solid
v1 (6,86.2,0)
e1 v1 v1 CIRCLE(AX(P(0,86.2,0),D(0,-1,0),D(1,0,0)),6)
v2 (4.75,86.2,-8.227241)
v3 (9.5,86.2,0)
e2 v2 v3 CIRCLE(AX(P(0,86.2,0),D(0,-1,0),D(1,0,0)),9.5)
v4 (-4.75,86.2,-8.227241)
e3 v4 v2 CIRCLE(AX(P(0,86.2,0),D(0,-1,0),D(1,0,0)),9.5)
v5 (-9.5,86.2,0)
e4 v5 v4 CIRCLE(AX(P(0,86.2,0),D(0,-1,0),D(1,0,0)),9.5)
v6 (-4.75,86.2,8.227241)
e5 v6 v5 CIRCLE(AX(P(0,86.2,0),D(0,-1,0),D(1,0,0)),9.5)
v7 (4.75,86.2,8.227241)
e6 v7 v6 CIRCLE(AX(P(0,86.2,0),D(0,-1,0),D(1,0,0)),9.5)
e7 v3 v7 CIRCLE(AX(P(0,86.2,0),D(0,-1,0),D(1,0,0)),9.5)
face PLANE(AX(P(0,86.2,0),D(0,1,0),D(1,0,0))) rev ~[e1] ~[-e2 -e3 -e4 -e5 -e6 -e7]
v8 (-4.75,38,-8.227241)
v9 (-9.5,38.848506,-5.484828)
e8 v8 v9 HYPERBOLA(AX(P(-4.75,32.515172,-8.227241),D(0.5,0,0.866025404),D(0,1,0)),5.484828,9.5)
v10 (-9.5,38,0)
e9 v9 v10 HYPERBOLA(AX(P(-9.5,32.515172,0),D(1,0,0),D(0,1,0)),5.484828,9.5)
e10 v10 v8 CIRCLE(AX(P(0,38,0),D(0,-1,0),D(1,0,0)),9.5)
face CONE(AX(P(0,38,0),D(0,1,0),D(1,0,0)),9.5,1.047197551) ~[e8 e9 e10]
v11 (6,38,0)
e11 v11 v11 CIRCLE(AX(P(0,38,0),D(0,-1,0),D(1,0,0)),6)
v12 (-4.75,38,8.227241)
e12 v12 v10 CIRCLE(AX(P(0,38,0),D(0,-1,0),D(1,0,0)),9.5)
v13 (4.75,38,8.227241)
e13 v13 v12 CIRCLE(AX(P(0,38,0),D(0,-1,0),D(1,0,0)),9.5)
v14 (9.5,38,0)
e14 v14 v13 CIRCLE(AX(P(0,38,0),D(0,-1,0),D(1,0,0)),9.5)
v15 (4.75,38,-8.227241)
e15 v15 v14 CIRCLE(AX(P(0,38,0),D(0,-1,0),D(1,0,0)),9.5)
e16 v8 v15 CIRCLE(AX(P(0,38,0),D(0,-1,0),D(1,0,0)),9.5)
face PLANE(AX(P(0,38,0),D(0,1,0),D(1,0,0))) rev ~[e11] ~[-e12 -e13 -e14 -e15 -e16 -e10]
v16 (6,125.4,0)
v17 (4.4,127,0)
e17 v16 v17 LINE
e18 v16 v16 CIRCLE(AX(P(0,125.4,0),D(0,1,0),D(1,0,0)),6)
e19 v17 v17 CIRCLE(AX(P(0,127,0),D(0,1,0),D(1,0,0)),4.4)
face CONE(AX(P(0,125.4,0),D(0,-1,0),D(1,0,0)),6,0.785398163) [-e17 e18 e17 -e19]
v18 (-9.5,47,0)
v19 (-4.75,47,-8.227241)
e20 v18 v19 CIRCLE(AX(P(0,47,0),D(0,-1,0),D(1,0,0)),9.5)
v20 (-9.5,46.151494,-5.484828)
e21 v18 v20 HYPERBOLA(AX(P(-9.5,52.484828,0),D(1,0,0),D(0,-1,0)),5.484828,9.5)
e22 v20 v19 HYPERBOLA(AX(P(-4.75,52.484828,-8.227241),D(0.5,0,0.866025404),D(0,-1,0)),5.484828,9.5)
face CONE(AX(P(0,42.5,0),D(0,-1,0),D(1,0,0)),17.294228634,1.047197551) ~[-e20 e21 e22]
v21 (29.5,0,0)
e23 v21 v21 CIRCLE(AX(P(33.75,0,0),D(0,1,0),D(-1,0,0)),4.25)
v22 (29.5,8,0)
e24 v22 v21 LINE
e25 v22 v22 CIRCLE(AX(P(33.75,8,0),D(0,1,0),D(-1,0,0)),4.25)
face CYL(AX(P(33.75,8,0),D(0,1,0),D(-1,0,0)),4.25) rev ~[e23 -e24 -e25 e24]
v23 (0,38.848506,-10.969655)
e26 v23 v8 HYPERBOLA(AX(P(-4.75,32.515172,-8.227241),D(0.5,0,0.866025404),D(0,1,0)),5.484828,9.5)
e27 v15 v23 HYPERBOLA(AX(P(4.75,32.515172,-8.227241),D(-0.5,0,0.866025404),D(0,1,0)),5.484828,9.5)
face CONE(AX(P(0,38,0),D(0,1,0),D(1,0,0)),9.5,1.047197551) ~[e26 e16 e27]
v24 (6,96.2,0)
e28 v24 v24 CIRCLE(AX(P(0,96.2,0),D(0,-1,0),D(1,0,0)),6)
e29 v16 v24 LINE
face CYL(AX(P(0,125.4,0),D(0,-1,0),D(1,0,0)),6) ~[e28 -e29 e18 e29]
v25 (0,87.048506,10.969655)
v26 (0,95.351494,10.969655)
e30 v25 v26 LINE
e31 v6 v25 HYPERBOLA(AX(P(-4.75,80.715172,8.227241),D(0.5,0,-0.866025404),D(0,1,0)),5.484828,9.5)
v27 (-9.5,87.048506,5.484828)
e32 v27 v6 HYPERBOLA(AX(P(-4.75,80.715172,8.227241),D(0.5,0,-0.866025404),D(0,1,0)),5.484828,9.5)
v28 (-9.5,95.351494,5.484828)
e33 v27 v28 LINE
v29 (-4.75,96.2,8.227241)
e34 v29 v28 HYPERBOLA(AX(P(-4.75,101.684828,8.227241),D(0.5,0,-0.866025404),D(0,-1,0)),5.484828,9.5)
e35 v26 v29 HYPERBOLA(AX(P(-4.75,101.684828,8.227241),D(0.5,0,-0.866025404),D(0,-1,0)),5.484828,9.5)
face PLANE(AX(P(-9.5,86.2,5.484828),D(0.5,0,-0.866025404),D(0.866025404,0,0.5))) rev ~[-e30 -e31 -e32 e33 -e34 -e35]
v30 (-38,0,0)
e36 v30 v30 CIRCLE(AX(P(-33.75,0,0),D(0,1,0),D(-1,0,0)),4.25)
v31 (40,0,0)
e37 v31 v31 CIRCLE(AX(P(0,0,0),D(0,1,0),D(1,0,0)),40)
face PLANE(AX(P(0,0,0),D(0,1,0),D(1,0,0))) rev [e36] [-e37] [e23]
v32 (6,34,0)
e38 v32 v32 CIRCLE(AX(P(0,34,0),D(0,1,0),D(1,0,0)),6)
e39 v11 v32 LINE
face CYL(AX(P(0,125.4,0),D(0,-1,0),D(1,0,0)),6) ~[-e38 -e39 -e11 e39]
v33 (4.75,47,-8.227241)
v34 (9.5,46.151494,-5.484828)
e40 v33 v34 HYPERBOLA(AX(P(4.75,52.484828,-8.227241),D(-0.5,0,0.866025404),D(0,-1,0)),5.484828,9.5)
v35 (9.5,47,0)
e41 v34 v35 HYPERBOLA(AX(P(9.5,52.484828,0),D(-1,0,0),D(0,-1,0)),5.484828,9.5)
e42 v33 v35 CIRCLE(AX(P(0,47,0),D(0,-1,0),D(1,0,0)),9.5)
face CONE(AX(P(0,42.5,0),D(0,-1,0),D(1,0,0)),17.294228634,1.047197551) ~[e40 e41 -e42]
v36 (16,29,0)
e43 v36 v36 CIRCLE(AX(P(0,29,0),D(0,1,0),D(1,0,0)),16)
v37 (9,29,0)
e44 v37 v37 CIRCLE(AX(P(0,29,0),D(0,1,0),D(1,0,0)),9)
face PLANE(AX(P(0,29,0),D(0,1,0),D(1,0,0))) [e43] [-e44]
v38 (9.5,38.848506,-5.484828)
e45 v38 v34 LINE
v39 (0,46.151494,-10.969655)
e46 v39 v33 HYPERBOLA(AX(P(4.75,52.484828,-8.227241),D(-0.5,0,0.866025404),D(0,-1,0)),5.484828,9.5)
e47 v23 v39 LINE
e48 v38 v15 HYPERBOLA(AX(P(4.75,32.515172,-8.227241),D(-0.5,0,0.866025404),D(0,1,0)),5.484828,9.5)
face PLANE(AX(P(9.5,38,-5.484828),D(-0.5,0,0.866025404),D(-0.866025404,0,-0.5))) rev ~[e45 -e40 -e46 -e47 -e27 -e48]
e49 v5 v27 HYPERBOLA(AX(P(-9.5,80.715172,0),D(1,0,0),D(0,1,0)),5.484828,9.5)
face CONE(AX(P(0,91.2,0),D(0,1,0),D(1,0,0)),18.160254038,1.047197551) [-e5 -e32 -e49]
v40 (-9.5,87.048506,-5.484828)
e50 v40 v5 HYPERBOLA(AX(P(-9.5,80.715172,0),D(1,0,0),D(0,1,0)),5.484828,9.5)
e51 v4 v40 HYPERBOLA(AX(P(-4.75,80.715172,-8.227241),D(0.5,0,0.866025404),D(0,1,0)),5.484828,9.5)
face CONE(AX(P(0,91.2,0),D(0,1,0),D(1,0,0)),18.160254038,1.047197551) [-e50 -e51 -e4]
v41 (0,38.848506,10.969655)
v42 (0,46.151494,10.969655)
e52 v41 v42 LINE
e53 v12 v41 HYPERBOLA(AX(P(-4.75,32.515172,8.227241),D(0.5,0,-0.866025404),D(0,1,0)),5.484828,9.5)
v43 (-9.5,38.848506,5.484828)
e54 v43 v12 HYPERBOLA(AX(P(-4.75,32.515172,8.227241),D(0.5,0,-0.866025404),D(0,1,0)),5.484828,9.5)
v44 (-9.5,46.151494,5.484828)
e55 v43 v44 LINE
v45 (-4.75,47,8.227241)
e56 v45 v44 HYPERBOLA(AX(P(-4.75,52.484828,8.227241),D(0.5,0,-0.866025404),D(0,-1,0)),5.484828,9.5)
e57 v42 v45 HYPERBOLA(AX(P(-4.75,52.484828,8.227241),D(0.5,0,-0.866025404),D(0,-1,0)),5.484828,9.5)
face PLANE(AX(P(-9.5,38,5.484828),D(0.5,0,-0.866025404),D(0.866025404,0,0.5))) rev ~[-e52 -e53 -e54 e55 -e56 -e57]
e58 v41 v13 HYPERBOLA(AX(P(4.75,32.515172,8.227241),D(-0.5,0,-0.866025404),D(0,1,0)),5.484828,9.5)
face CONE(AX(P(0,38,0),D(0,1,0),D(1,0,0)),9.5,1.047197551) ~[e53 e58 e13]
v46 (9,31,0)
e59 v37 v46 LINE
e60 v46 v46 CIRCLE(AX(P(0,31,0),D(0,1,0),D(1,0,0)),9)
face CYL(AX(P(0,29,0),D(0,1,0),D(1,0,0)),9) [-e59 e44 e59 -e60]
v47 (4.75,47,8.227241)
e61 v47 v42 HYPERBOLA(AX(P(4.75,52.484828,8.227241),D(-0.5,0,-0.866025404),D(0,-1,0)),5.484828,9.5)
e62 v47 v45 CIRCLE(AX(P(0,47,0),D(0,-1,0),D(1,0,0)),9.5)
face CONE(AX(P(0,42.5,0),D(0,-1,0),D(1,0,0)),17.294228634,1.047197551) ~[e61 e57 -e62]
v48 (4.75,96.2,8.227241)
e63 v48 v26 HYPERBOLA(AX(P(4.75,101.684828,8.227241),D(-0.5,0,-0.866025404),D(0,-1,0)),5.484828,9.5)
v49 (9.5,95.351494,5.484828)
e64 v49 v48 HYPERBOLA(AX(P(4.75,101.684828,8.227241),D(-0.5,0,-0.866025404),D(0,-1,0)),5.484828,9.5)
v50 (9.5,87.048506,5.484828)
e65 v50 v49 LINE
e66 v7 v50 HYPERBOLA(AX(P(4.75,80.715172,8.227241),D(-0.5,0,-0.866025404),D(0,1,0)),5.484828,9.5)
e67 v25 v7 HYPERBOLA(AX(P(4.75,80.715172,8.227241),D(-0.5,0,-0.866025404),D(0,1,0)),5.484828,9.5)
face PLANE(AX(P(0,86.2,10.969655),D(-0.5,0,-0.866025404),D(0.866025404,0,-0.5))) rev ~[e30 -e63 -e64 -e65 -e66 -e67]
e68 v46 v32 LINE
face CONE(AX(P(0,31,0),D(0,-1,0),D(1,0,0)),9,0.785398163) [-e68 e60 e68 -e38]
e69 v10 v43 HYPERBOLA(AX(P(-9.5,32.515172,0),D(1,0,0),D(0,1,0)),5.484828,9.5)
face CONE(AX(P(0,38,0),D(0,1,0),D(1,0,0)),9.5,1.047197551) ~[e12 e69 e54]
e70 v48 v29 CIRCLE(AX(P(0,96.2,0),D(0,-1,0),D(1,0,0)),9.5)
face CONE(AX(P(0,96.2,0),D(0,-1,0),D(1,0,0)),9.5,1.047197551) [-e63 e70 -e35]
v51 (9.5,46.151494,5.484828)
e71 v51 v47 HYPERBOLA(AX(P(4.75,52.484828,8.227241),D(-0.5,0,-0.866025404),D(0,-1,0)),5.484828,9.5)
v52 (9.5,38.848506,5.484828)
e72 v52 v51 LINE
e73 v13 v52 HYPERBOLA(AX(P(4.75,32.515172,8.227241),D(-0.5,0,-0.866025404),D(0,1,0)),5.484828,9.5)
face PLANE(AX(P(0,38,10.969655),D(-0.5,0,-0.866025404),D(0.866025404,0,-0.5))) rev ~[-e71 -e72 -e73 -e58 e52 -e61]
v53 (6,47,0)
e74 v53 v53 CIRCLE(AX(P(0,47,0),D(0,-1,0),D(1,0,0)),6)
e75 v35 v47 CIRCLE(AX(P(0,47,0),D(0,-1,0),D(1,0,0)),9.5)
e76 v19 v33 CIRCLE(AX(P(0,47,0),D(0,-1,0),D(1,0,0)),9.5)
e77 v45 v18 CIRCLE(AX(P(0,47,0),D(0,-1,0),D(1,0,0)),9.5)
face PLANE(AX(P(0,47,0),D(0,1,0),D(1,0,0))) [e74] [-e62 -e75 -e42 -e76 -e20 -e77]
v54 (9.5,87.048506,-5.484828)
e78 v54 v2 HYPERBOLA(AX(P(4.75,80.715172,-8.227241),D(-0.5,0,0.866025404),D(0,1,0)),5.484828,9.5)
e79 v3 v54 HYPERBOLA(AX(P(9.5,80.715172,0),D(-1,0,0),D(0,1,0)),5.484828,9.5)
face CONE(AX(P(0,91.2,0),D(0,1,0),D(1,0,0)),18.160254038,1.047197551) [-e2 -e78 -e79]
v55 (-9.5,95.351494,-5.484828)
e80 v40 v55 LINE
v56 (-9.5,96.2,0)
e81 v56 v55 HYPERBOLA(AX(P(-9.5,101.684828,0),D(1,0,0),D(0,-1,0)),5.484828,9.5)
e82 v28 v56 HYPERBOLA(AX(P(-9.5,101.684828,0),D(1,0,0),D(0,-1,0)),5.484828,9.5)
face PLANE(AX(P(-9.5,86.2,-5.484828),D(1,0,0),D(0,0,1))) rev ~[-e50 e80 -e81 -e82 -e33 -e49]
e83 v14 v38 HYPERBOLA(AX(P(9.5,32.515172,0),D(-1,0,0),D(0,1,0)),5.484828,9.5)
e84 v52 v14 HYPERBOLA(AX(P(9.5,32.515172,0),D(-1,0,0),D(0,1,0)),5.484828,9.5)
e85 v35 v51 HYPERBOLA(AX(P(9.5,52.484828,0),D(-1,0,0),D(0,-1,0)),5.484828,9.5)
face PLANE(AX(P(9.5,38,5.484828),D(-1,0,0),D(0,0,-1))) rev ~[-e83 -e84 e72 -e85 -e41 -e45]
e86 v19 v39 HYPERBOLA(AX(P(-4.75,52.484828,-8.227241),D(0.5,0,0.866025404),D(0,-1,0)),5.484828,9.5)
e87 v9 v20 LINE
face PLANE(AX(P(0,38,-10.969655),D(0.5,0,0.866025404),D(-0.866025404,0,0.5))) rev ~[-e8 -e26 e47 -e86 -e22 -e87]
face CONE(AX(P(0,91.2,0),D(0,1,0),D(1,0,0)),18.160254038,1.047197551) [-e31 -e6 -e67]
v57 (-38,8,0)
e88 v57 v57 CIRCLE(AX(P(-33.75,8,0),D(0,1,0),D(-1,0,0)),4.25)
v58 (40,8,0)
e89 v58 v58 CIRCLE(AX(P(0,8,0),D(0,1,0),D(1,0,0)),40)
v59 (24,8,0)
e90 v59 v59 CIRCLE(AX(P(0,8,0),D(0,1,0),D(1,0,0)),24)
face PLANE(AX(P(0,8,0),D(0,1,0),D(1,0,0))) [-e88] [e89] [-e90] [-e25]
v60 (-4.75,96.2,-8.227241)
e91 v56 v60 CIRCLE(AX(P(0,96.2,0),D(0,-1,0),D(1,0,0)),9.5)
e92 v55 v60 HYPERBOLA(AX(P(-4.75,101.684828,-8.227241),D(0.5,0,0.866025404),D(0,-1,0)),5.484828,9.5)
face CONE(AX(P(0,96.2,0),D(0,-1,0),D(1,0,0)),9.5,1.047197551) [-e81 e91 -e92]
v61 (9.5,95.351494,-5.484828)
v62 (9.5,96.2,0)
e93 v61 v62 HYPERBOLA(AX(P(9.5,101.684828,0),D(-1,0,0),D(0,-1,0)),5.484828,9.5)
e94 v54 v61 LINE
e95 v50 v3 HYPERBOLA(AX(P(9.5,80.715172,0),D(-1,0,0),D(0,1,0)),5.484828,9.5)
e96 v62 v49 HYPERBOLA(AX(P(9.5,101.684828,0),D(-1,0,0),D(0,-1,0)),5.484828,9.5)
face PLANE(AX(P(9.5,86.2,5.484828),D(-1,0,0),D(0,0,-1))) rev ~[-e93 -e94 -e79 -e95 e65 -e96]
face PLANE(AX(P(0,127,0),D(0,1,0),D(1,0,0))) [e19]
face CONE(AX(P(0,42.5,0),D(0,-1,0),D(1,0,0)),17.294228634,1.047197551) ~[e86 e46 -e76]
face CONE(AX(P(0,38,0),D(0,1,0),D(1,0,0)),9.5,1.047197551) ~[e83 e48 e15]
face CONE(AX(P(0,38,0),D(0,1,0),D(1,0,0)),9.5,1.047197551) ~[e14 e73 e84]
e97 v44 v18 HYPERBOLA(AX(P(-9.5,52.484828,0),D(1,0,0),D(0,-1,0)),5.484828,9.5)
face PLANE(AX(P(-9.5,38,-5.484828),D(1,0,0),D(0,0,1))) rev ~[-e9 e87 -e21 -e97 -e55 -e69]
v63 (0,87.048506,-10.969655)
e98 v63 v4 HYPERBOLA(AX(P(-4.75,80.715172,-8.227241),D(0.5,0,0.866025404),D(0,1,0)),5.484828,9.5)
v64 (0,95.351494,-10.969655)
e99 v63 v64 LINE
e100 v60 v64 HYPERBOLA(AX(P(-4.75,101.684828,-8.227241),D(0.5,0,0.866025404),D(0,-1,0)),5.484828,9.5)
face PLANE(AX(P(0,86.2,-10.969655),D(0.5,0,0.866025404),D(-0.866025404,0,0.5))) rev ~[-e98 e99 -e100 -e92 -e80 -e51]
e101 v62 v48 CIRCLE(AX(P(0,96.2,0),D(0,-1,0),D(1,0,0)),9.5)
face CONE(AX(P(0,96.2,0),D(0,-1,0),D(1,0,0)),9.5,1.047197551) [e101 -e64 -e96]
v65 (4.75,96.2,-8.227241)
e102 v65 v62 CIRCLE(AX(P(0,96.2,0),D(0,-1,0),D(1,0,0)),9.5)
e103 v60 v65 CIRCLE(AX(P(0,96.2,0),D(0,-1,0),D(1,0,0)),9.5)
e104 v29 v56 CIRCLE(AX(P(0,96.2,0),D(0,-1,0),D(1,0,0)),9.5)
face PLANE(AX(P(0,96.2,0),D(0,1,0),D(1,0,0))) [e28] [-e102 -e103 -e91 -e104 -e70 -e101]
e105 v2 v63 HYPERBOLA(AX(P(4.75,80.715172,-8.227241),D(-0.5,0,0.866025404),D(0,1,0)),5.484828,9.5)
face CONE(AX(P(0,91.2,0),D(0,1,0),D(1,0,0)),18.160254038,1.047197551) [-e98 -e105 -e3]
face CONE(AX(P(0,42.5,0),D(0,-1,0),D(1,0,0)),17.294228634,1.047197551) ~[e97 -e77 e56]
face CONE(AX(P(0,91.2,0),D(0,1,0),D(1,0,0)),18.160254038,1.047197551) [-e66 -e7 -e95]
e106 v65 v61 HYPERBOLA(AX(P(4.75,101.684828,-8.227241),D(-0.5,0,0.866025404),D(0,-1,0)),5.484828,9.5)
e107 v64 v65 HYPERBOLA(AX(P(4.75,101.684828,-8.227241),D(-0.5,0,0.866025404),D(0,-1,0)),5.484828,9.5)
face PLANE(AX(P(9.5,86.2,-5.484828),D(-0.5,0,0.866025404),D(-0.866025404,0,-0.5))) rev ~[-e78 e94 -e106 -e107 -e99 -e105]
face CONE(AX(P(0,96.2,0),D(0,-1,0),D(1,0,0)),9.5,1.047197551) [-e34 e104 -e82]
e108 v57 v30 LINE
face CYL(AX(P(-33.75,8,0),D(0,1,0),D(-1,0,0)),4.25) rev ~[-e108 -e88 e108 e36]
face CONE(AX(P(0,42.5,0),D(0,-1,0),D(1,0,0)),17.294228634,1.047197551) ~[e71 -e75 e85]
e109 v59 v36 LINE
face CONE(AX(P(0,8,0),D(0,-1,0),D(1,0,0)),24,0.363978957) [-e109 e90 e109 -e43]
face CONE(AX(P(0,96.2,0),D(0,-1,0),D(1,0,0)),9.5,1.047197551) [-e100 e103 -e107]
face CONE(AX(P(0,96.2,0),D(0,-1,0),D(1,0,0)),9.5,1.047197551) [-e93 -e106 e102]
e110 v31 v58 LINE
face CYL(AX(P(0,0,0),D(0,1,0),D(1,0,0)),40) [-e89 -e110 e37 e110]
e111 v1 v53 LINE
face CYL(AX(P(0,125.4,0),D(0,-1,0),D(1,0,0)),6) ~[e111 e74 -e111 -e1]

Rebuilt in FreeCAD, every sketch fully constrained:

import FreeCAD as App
import Part
import Sketcher

V = App.Vector
Q = App.Units.Quantity


def add_polygon(sketch, points):
    """Adds a closed chain of lines whose ends are joined by coincident constraints."""
    first, n = sketch.GeometryCount, len(points)
    for a, b in zip(points, points[1:] + points[:1]):
        sketch.addGeometry(Part.LineSegment(App.Vector(*a, 0), App.Vector(*b, 0)), False)
    for i in range(n):
        sketch.addConstraint(Sketcher.Constraint("Coincident", first + i, 2, first + (i + 1) % n, 1))

doc = App.newDocument("Part")
body = doc.addObject("PartDesign::Body", "Body")

# Sketch on XY plane
sketch1 = doc.addObject("Sketcher::SketchObject", "Sketch")
body.addObject(sketch1)
sketch1.AttachmentSupport = (doc.XY_Plane, [""])
sketch1.MapMode = "FlatFace"
add_polygon(sketch1, [(-40, 0), (0, 0), (0, 127), (-4.4, 127), (-6, 125.4), (-6, 34), (-9, 31), (-9, 29), (-16, 29), (-24, 8), (-40, 8)])  # lines 0-10
sketch1.addConstraint([
    Sketcher.Constraint("Horizontal", 0),
    Sketcher.Constraint("Vertical", 1),
    Sketcher.Constraint("Horizontal", 2),
    Sketcher.Constraint("Vertical", 4),
    Sketcher.Constraint("Vertical", 6),
    Sketcher.Constraint("Horizontal", 7),
    Sketcher.Constraint("Horizontal", 9),
    Sketcher.Constraint("Vertical", 10),
    Sketcher.Constraint("Coincident", 0, 2, -1, 1),
    Sketcher.Constraint("Parallel", 3, 5),
    Sketcher.Constraint("DistanceX", 0, 1, 0, 2, 40.0),
    Sketcher.Constraint("DistanceX", 7, 2, 7, 1, 7.0),
    Sketcher.Constraint("DistanceX", 9, 2, 9, 1, 16.0),
    Sketcher.Constraint("DistanceY", 1, 1, 1, 2, 127.0),
    Sketcher.Constraint("DistanceY", 6, 2, 6, 1, 2.0),
    Sketcher.Constraint("DistanceY", 10, 2, 10, 1, 8.0),
    Sketcher.Constraint("Angle", 3, Q("-135 deg")),
    Sketcher.Constraint("DistanceX", 2, 2, 2, 1, 4.4),
    Sketcher.Constraint("DistanceY", 4, 2, 4, 1, 91.4),
    Sketcher.Constraint("DistanceX", 3, 2, -1, 1, 6.0),
    Sketcher.Constraint("DistanceX", 5, 2, -1, 1, 9.0),
])
revolution = doc.addObject("PartDesign::Revolution", "Revolution")
body.addObject(revolution)
revolution.Profile = sketch1
revolution.ReferenceAxis = (sketch1, ["V_Axis"])
revolution.Angle = 360

# Sketch on XZ plane
sketch2 = doc.addObject("Sketcher::SketchObject", "Sketch001")
body.addObject(sketch2)
sketch2.AttachmentSupport = (doc.XZ_Plane, [""])
sketch2.MapMode = "FlatFace"
sketch2.AttachmentOffset = App.Placement(V(0, 0, -38), App.Rotation())
add_polygon(sketch2, [(0, -11), (-10, -5), (-10, 5), (0, 11), (10, 5), (10, -5)])  # lines 0-5
sketch2.addConstraint([
    Sketcher.Constraint("Vertical", 1),
    Sketcher.Constraint("Vertical", 4),
    Sketcher.Constraint("Symmetric", 0, 2, 3, 2, -1, 1),
    Sketcher.Constraint("Symmetric", 2, 2, 5, 2, -1, 1),
    Sketcher.Constraint("PointOnObject", 2, 2, -2),
    Sketcher.Constraint("Parallel", 2, 5),
    Sketcher.Constraint("Horizontal", 1, 2, 3, 2),
    Sketcher.Constraint("Angle", 0, Q("150 deg")),
    Sketcher.Constraint("DistanceX", 1, 2, 3, 2, 19.0),
    Sketcher.Constraint("DistanceY", 1, 1, 1, 2, 10.969655),
])
pad1 = doc.addObject("PartDesign::Pad", "Pad")
body.addObject(pad1)
pad1.Profile = sketch2
pad1.Length = 9
pad1.Reversed = True

# Sketch on XZ plane
sketch3 = doc.addObject("Sketcher::SketchObject", "Sketch002")
body.addObject(sketch3)
sketch3.AttachmentSupport = (doc.XZ_Plane, [""])
sketch3.MapMode = "FlatFace"
sketch3.AttachmentOffset = App.Placement(V(0, 0, -86.2), App.Rotation())
add_polygon(sketch3, [(10, -5), (0, -11), (-10, -5), (-10, 5), (0, 11), (10, 5)])  # lines 0-5
sketch3.addConstraint([
    Sketcher.Constraint("Vertical", 2),
    Sketcher.Constraint("Vertical", 5),
    Sketcher.Constraint("Symmetric", 0, 2, 3, 2, -1, 1),
    Sketcher.Constraint("Symmetric", 1, 2, 4, 2, -1, 1),
    Sketcher.Constraint("PointOnObject", 0, 2, -2),
    Sketcher.Constraint("Parallel", 0, 3),
    Sketcher.Constraint("Horizontal", 2, 2, 4, 2),
    Sketcher.Constraint("Angle", 0, Q("-150 deg")),
    Sketcher.Constraint("DistanceX", 2, 2, 4, 2, 19.0),
    Sketcher.Constraint("DistanceY", 2, 1, 2, 2, 10.969655),
])
pad2 = doc.addObject("PartDesign::Pad", "Pad001")
body.addObject(pad2)
pad2.Profile = sketch3
pad2.Length = 10
pad2.Reversed = True

# Sketch on XY plane
sketch4 = doc.addObject("Sketcher::SketchObject", "Sketch003")
body.addObject(sketch4)
sketch4.AttachmentSupport = (doc.XY_Plane, [""])
sketch4.MapMode = "FlatFace"
add_polygon(sketch4, [(-9.5, 96.2), (-18.2, 96.2), (-18.2, 91.2)])  # lines 0-2
add_polygon(sketch4, [(-18.2, 91.2), (-18.2, 86.2), (-9.5, 86.2)])  # lines 3-5
add_polygon(sketch4, [(-17.3, 47), (-17.3, 42.5), (-9.5, 47)])  # lines 6-8
add_polygon(sketch4, [(-17.3, 42.5), (-17.3, 38), (-9.5, 38)])  # lines 9-11
sketch4.addConstraint([
    Sketcher.Constraint("Horizontal", 0),
    Sketcher.Constraint("Vertical", 1),
    Sketcher.Constraint("Vertical", 3),
    Sketcher.Constraint("Horizontal", 4),
    Sketcher.Constraint("Vertical", 6),
    Sketcher.Constraint("Horizontal", 8),
    Sketcher.Constraint("Vertical", 9),
    Sketcher.Constraint("Horizontal", 10),
    Sketcher.Constraint("Coincident", 5, 2, 1, 2),
    Sketcher.Constraint("Coincident", 11, 2, 6, 2),
    Sketcher.Constraint("Parallel", 2, 7),
    Sketcher.Constraint("Parallel", 5, 11),
    Sketcher.Constraint("Vertical", 2, 2, 4, 2),
    Sketcher.Constraint("Vertical", 4, 2, 7, 2),
    Sketcher.Constraint("Vertical", 7, 2, 10, 2),
    Sketcher.Constraint("Equal", 1, 3),
    Sketcher.Constraint("DistanceY", 1, 2, 1, 1, 5.0),
    Sketcher.Constraint("Angle", 2, Q("30 deg")),
    Sketcher.Constraint("Distance", 7, 9.0),
    Sketcher.Constraint("DistanceY", -1, 1, 7, 2, 47.0),
    Sketcher.Constraint("DistanceY", -1, 1, 0, 2, 96.2),
    Sketcher.Constraint("DistanceX", 2, 2, -1, 1, 9.5),
])
groove = doc.addObject("PartDesign::Groove", "Groove")
body.addObject(groove)
groove.Profile = sketch4
groove.ReferenceAxis = (sketch4, ["V_Axis"])
groove.Angle = 360

# Sketch on XZ plane
sketch5 = doc.addObject("Sketcher::SketchObject", "Sketch004")
body.addObject(sketch5)
sketch5.AttachmentSupport = (doc.XZ_Plane, [""])
sketch5.MapMode = "FlatFace"
sketch5.AttachmentOffset = App.Placement(V(0, 0, -8), App.Rotation())
sketch5.addGeometry([
    Part.Circle(V(-33.8, 0, 0), V(0, 0, 1), 4.2),
    Part.Circle(V(33.8, 0, 0), V(0, 0, 1), 4.2),
], False)
sketch5.addConstraint([
    Sketcher.Constraint("Equal", 0, 1),
    Sketcher.Constraint("Symmetric", 0, 3, 1, 3, -1, 1),
    Sketcher.Constraint("PointOnObject", 0, 3, -1),
    Sketcher.Constraint("Diameter", 0, 8.5),
    Sketcher.Constraint("DistanceX", 0, 3, 1, 3, 67.5),
])
pocket1 = doc.addObject("PartDesign::Pocket", "Pocket")
body.addObject(pocket1)
pocket1.Profile = sketch5
pocket1.Type = "ThroughAll"
pocket1.Reversed = True

doc.recompute()
